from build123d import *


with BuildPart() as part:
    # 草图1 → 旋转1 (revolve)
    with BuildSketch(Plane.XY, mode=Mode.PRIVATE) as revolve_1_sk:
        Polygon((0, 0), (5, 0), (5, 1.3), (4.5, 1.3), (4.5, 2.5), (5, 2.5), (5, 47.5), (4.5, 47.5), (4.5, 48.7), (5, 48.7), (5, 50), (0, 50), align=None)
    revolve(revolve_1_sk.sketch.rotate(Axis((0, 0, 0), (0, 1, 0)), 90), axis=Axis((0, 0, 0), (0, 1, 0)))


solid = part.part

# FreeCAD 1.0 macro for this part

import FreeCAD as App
import Part
import Sketcher
from FreeCAD import Vector


def add_polygon(sketch, points):
    """Adds a closed chain of lines whose ends are joined by coincident constraints."""
    first, n = sketch.GeometryCount, len(points)
    for a, b in zip(points, points[1:] + points[:1]):
        sketch.addGeometry(Part.LineSegment(App.Vector(*a, 0), App.Vector(*b, 0)), False)
    for i in range(n):
        sketch.addConstraint(Sketcher.Constraint("Coincident", first + i, 2, first + (i + 1) % n, 1))

doc = App.newDocument("Part")
body = doc.addObject("PartDesign::Body", "Body")

# Sketch on XY plane
sketch1 = body.newObject("Sketcher::SketchObject", "Sketch")
sketch1.AttachmentSupport = (doc.getObject("XY_Plane"), [""])
sketch1.MapMode = "FlatFace"
add_polygon(sketch1, [(0, 0), (5, 0), (5, 1.3), (4.5, 1.3), (4.5, 2.5), (5, 2.5), (5, 47.5), (4.5, 47.5), (4.5, 48.7), (5, 48.7), (5, 50), (0, 50)])  # lines 0-11
sketch1.addConstraint([
    Sketcher.Constraint("Horizontal", 0),
    Sketcher.Constraint("Vertical", 1),
    Sketcher.Constraint("Horizontal", 2),
    Sketcher.Constraint("Vertical", 3),
    Sketcher.Constraint("Horizontal", 4),
    Sketcher.Constraint("Vertical", 5),
    Sketcher.Constraint("Horizontal", 6),
    Sketcher.Constraint("Vertical", 7),
    Sketcher.Constraint("Horizontal", 8),
    Sketcher.Constraint("Vertical", 9),
    Sketcher.Constraint("Horizontal", 10),
    Sketcher.Constraint("Vertical", 11),
    Sketcher.Constraint("Coincident", 11, 2, -1, 1),
    Sketcher.Constraint("Vertical", 1, 2, 4, 2),
    Sketcher.Constraint("Vertical", 3, 2, 6, 2),
    Sketcher.Constraint("Vertical", 5, 2, 8, 2),
    Sketcher.Constraint("Equal", 3, 7),
    Sketcher.Constraint("Equal", 1, 9),
    Sketcher.Constraint("DistanceX", 0, 1, 0, 2, 5.0),
    Sketcher.Constraint("DistanceY", 5, 1, 5, 2, 45.0),
    Sketcher.Constraint("DistanceY", 11, 2, 11, 1, 50.0),
    Sketcher.Constraint("DistanceX", 2, 2, 2, 1, 0.5),
    Sketcher.Constraint("DistanceY", 1, 1, 1, 2, 1.3),
])
revolution = body.newObject("PartDesign::Revolution", "Revolution")
revolution.Profile = sketch1
revolution.ReferenceAxis = (sketch1, ["V_Axis"])
revolution.Angle = 360

doc.recompute()
